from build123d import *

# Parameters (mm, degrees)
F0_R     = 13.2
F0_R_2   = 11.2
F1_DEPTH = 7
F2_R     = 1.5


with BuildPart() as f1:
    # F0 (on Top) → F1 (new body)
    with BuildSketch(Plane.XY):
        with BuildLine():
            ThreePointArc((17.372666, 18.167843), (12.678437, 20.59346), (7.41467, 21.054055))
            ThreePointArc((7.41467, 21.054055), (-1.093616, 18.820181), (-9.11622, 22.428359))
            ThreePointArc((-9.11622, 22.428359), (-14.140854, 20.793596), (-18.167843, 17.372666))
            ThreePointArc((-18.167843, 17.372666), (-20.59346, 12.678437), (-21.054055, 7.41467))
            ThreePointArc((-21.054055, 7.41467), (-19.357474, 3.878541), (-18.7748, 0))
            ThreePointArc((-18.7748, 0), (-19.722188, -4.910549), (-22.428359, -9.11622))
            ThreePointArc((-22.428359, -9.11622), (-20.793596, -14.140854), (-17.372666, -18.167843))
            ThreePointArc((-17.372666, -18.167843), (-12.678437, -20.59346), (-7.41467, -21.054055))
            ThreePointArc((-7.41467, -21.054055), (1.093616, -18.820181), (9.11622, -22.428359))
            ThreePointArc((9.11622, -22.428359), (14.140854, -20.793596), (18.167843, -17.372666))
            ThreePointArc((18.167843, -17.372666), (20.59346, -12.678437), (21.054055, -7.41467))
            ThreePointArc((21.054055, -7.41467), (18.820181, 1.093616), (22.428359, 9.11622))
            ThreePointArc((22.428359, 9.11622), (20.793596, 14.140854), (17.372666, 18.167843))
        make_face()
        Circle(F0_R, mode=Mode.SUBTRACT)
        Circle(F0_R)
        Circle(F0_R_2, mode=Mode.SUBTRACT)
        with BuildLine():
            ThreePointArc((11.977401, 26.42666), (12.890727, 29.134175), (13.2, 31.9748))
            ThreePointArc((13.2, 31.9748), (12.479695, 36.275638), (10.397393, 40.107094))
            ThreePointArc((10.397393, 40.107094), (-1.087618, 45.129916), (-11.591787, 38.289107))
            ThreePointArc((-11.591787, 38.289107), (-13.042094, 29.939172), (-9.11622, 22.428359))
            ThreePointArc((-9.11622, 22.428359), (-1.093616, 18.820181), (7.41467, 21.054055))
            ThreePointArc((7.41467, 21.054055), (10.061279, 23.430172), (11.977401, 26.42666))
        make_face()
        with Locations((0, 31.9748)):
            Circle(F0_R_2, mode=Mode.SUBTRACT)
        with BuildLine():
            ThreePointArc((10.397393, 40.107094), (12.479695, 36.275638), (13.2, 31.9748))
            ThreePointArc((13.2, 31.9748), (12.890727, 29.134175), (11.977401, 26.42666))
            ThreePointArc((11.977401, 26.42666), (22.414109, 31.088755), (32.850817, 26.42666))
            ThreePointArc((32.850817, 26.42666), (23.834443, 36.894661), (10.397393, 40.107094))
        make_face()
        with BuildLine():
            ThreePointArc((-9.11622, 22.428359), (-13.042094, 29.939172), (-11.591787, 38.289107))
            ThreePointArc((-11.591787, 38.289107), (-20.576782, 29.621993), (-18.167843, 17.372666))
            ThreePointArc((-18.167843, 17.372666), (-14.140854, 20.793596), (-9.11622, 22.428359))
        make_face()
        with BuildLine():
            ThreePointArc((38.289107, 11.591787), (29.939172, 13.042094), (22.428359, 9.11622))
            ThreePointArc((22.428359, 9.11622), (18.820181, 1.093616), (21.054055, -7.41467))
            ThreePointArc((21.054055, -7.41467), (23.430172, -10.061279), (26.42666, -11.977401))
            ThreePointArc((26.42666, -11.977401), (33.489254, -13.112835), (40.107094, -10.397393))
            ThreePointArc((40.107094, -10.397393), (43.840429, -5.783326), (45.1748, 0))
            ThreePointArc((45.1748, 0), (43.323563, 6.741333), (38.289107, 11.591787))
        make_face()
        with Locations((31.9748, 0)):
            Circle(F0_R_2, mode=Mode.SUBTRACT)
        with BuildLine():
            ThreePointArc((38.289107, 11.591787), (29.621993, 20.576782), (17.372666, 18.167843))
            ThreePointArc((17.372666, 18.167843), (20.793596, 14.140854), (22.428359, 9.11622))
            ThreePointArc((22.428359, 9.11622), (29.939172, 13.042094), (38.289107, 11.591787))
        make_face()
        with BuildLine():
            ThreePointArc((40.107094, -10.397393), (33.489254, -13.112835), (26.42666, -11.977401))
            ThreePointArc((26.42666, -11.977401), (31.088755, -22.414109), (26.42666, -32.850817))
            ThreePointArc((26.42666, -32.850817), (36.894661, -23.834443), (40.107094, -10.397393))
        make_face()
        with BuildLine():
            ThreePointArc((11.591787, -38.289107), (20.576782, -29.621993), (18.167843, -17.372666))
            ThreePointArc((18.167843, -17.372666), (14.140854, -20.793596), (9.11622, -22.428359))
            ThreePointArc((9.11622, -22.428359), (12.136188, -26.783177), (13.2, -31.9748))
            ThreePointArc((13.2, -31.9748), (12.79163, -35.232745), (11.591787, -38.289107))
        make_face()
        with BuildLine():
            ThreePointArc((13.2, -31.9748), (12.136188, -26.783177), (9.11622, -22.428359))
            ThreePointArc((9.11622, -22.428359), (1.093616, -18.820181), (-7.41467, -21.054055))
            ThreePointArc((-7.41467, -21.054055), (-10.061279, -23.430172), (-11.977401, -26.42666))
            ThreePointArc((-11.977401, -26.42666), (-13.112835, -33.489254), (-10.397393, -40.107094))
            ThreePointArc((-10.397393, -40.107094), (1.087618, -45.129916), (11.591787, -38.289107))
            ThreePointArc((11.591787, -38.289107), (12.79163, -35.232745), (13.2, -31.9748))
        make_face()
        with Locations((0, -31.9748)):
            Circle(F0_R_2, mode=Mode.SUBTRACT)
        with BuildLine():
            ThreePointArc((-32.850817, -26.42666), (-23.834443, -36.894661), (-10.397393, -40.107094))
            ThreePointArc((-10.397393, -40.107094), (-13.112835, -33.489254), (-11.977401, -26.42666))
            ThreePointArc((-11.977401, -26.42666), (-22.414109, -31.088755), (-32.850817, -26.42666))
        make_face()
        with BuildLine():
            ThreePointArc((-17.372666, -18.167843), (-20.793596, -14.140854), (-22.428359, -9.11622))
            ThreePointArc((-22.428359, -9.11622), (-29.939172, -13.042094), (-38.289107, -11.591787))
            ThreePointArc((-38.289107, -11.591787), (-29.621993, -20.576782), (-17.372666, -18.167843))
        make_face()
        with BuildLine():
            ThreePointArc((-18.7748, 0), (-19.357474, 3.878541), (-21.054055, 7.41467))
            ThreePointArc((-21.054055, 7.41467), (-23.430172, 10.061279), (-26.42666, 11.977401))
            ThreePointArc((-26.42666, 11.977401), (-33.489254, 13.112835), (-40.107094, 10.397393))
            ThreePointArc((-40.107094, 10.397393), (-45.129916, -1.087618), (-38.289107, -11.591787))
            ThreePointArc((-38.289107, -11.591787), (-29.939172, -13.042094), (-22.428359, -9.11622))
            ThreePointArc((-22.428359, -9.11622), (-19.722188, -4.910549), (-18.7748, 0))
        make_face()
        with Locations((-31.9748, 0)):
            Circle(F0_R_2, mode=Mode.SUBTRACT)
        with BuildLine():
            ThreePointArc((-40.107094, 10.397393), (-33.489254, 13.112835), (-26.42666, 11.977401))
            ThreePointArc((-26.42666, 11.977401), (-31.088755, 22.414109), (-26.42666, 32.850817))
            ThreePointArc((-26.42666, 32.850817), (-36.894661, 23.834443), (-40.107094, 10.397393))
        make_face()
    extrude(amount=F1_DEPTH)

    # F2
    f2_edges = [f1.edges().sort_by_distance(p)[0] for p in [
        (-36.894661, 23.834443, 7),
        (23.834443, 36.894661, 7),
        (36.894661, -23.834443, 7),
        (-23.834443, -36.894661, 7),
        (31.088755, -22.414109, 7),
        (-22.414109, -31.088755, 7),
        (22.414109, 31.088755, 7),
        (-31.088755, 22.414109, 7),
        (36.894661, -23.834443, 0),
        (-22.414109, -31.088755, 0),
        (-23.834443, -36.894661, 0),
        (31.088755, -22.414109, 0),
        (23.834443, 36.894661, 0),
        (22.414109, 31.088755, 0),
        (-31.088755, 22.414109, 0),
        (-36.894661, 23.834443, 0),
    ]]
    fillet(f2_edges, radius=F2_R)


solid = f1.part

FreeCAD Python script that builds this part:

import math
import FreeCAD as App
import Part
import Sketcher
Q = App.Units.Quantity


def edges_at(feature, points):
    """Names of the edges that pass closest to the given points."""
    edges = feature.Shape.Edges
    near = lambda p: min(range(len(edges)), key=lambda i: edges[i].distToShape(Part.Vertex(*p))[0])
    return sorted({f"Edge{near(p) + 1}" for p in points})

doc = App.newDocument("Part")
body = doc.addObject("PartDesign::Body", "Body")

# Sketch on XY plane
sketch1 = body.newObject("Sketcher::SketchObject", "Sketch")
sketch1.AttachmentSupport = (doc.getObject("XY_Plane"), [""])
sketch1.MapMode = "FlatFace"
sketch1.addGeometry([
    Part.ArcOfCircle(Part.Circle(App.Vector(9, 7, 0), App.Vector(0, 0, 1), 14), math.radians(52), math.radians(96)),  # 0
    Part.ArcOfCircle(Part.Circle(App.Vector(0, 32, 0), App.Vector(0, 0, 1), 13), math.radians(-56), math.radians(-25)),  # 1
    Part.ArcOfCircle(Part.Circle(App.Vector(22, 17, 0), App.Vector(0, 0, 1), 14), math.radians(42), math.radians(138)),  # 2
    Part.ArcOfCircle(Part.Circle(App.Vector(12, 18, 0), App.Vector(0, 0, 1), 22), math.radians(23), math.radians(94)),  # 3
    Part.ArcOfCircle(Part.Circle(App.Vector(0, 32, 0), App.Vector(0, 0, 1), 13), math.radians(38), math.radians(151)),  # 4
    Part.ArcOfCircle(Part.Circle(App.Vector(-8, 26, 0), App.Vector(0, 0, 1), 13), math.radians(105), math.radians(220)),  # 5
    Part.ArcOfCircle(Part.Circle(App.Vector(-7, 9, 0), App.Vector(0, 0, 1), 14), math.radians(142), math.radians(186)),  # 6
    Part.ArcOfCircle(Part.Circle(App.Vector(-32, 0, 0), App.Vector(0, 0, 1), 13), math.radians(34), math.radians(65)),  # 7
    Part.ArcOfCircle(Part.Circle(App.Vector(-17, 22, 0), App.Vector(0, 0, 1), 14), math.radians(132), math.radians(228)),  # 8
    Part.ArcOfCircle(Part.Circle(App.Vector(-18, 12, 0), App.Vector(0, 0, 1), 22), math.radians(113), math.radians(184)),  # 9
    Part.ArcOfCircle(Part.Circle(App.Vector(-32, 0, 0), App.Vector(0, 0, 1), 13), math.radians(128), math.radians(241)),  # 10
    Part.ArcOfCircle(Part.Circle(App.Vector(-26, -8, 0), App.Vector(0, 0, 1), 13), math.radians(-165), math.radians(-50)),  # 11
    Part.ArcOfCircle(Part.Circle(App.Vector(-9, -7, 0), App.Vector(0, 0, 1), 14), math.radians(-128), math.radians(-84)),  # 12
    Part.ArcOfCircle(Part.Circle(App.Vector(0, -32, 0), App.Vector(0, 0, 1), 13), math.radians(124), math.radians(155)),  # 13
    Part.ArcOfCircle(Part.Circle(App.Vector(-22, -17, 0), App.Vector(0, 0, 1), 14), math.radians(-138), math.radians(-42)),  # 14
    Part.ArcOfCircle(Part.Circle(App.Vector(-12, -18, 0), App.Vector(0, 0, 1), 22), math.radians(-157), math.radians(-86)),  # 15
    Part.ArcOfCircle(Part.Circle(App.Vector(0, -32, 0), App.Vector(0, 0, 1), 13), math.radians(-142), math.radians(-29)),  # 16
    Part.ArcOfCircle(Part.Circle(App.Vector(8, -26, 0), App.Vector(0, 0, 1), 13), math.radians(-75), math.radians(40)),  # 17
    Part.ArcOfCircle(Part.Circle(App.Vector(7, -9, 0), App.Vector(0, 0, 1), 14), math.radians(-38), math.radians(6)),  # 18
    Part.ArcOfCircle(Part.Circle(App.Vector(32, 0, 0), App.Vector(0, 0, 1), 13), math.radians(-146), math.radians(-115)),  # 19
    Part.ArcOfCircle(Part.Circle(App.Vector(17, -22, 0), App.Vector(0, 0, 1), 14), math.radians(-48), math.radians(48)),  # 20
    Part.ArcOfCircle(Part.Circle(App.Vector(18, -12, 0), App.Vector(0, 0, 1), 22), math.radians(-67), math.radians(4)),  # 21
    Part.ArcOfCircle(Part.Circle(App.Vector(32, 0, 0), App.Vector(0, 0, 1), 13), math.radians(-52), math.radians(0)),  # 22
    Part.ArcOfCircle(Part.Circle(App.Vector(32, 0, 0), App.Vector(0, 0, 1), 13), math.radians(0), math.radians(61)),  # 23
    Part.ArcOfCircle(Part.Circle(App.Vector(26, 8, 0), App.Vector(0, 0, 1), 13), math.radians(15), math.radians(130)),  # 24
    Part.Circle(App.Vector(0, -32, 0), App.Vector(0, 0, 1), 11),  # 25
    Part.Circle(App.Vector(-32, 0, 0), App.Vector(0, 0, 1), 11),  # 26
    Part.Circle(App.Vector(0, 0, 0), App.Vector(0, 0, 1), 11),  # 27
    Part.Circle(App.Vector(32, 0, 0), App.Vector(0, 0, 1), 11),  # 28
    Part.Circle(App.Vector(0, 32, 0), App.Vector(0, 0, 1), 11),  # 29
], False)
sketch1.addConstraint([
    Sketcher.Constraint("Coincident", 0, 2, 1, 1),
    Sketcher.Constraint("Coincident", 1, 2, 2, 2),
    Sketcher.Constraint("Coincident", 2, 1, 3, 1),
    Sketcher.Constraint("Coincident", 3, 2, 4, 1),
    Sketcher.Constraint("Coincident", 4, 2, 5, 1),
    Sketcher.Constraint("Coincident", 5, 2, 6, 1),
    Sketcher.Constraint("Coincident", 6, 2, 7, 1),
    Sketcher.Constraint("Coincident", 7, 2, 8, 2),
    Sketcher.Constraint("Coincident", 8, 1, 9, 1),
    Sketcher.Constraint("Coincident", 9, 2, 10, 1),
    Sketcher.Constraint("Coincident", 10, 2, 11, 1),
    Sketcher.Constraint("Coincident", 11, 2, 12, 1),
    Sketcher.Constraint("Coincident", 12, 2, 13, 1),
    Sketcher.Constraint("Coincident", 13, 2, 14, 2),
    Sketcher.Constraint("Coincident", 14, 1, 15, 1),
    Sketcher.Constraint("Coincident", 15, 2, 16, 1),
    Sketcher.Constraint("Coincident", 16, 2, 17, 1),
    Sketcher.Constraint("Coincident", 17, 2, 18, 1),
    Sketcher.Constraint("Coincident", 18, 2, 19, 1),
    Sketcher.Constraint("Coincident", 19, 2, 20, 2),
    Sketcher.Constraint("Coincident", 20, 1, 21, 1),
    Sketcher.Constraint("Coincident", 21, 2, 22, 1),
    Sketcher.Constraint("Tangent", 22, 2, 23, 1),
    Sketcher.Constraint("Coincident", 23, 2, 24, 1),
    Sketcher.Constraint("Coincident", 24, 2, 0, 1),
    Sketcher.Constraint("Coincident", 27, 3, -1, 1),
    Sketcher.Constraint("Coincident", 4, 3, 1, 3),
    Sketcher.Constraint("Coincident", 10, 3, 7, 3),
    Sketcher.Constraint("Coincident", 16, 3, 13, 3),
    Sketcher.Constraint("Coincident", 23, 3, 19, 3),
    Sketcher.Constraint("Coincident", 25, 3, 13, 3),
    Sketcher.Constraint("Coincident", 26, 3, 7, 3),
    Sketcher.Constraint("Coincident", 28, 3, 19, 3),
    Sketcher.Constraint("Coincident", 29, 3, 1, 3),
    Sketcher.Constraint("Equal", 0, 6),
    Sketcher.Constraint("Equal", 1, 7),
    Sketcher.Constraint("Equal", 2, 8),
    Sketcher.Constraint("Equal", 3, 9),
    Sketcher.Constraint("Equal", 4, 10),
    Sketcher.Constraint("Equal", 5, 11),
    Sketcher.Constraint("Equal", 6, 12),
    Sketcher.Constraint("Equal", 7, 13),
    Sketcher.Constraint("Equal", 8, 14),
    Sketcher.Constraint("Equal", 9, 15),
    Sketcher.Constraint("Equal", 10, 16),
    Sketcher.Constraint("Equal", 11, 17),
    Sketcher.Constraint("Equal", 12, 18),
    Sketcher.Constraint("Equal", 13, 19),
    Sketcher.Constraint("Equal", 14, 20),
    Sketcher.Constraint("Equal", 15, 21),
    Sketcher.Constraint("Equal", 19, 22),
    Sketcher.Constraint("Equal", 16, 23),
    Sketcher.Constraint("Equal", 17, 24),
    Sketcher.Constraint("Equal", 25, 26),
    Sketcher.Constraint("Equal", 26, 27),
    Sketcher.Constraint("Equal", 27, 28),
    Sketcher.Constraint("Equal", 28, 29),
    Sketcher.Constraint("Symmetric", 0, 3, 12, 3, -1, 1),
    Sketcher.Constraint("Symmetric", 1, 3, 13, 3, -1, 1),
    Sketcher.Constraint("Symmetric", 2, 3, 14, 3, -1, 1),
    Sketcher.Constraint("Symmetric", 3, 3, 15, 3, -1, 1),
    Sketcher.Constraint("Symmetric", 5, 3, 17, 3, -1, 1),
    Sketcher.Constraint("Symmetric", 6, 3, 18, 3, -1, 1),
    Sketcher.Constraint("Symmetric", 7, 3, 19, 3, -1, 1),
    Sketcher.Constraint("Symmetric", 8, 3, 20, 3, -1, 1),
    Sketcher.Constraint("Symmetric", 9, 3, 21, 3, -1, 1),
    Sketcher.Constraint("Symmetric", 11, 3, 24, 3, -1, 1),
    Sketcher.Constraint("Symmetric", 10, 3, 22, 3, -2),
    Sketcher.Constraint("PointOnObject", 4, 3, -2),
    Sketcher.Constraint("PointOnObject", 22, 2, -1),
    Sketcher.Constraint("Horizontal", 1, 2, 2, 1),
    Sketcher.Constraint("Vertical", 7, 2, 8, 1),
    Sketcher.Constraint("Diameter", 25, Q("22.4 mm")),
    Sketcher.Constraint("Radius", 4, Q("13.2 mm")),
    Sketcher.Constraint("Radius", 0, Q("13.646547 mm")),
    Sketcher.Constraint("Radius", 2, Q("14.013014 mm")),
    Sketcher.Constraint("Radius", 3, Q("22.465778 mm")),
    Sketcher.Constraint("Radius", 5, Q("13.048544 mm")),
    Sketcher.Constraint("DistanceY", -1, 1, 4, 3, Q("31.9748 mm")),
    Sketcher.Constraint("DistanceX", 10, 3, -1, 1, Q("31.9748 mm")),
    Sketcher.Constraint("DistanceX", -1, 1, 1, 2, Q("11.977401 mm")),
    Sketcher.Constraint("DistanceY", -1, 1, 7, 2, Q("11.977401 mm")),
    Sketcher.Constraint("DistanceY", 0, 3, 0, 2, Q("13.567702 mm")),
    Sketcher.Constraint("DistanceY", 1, 3, 3, 2, Q("8.132298 mm")),
    Sketcher.Constraint("DistanceX", 5, 2, 8, 3, Q("1.092102 mm")),
    Sketcher.Constraint("DistanceX", 9, 2, 7, 3, Q("8.132298 mm")),
    Sketcher.Constraint("DistanceY", 11, 2, 14, 3, Q("1.092102 mm")),
    Sketcher.Constraint("DistanceX", 22, 3, 23, 2, Q("6.314301 mm")),
    Sketcher.Constraint("DistanceX", -1, 1, 0, 3, Q("8.879492 mm")),
    Sketcher.Constraint("DistanceX", -1, 1, 2, 3, Q("22.414109 mm")),
    Sketcher.Constraint("DistanceY", -1, 1, 6, 3, Q("8.879492 mm")),
    Sketcher.Constraint("DistanceX", 8, 3, -1, 1, Q("17.075741 mm")),
    Sketcher.Constraint("DistanceY", -1, 1, 6, 2, Q("7.41467 mm")),
    Sketcher.Constraint("DistanceX", 5, 3, 1, 3, Q("8.128951 mm")),
])
pad1 = body.newObject("PartDesign::Pad", "Pad")
pad1.Profile = sketch1
pad1.Length = 7
doc.recompute()

fillet = body.newObject("PartDesign::Fillet", "Fillet")
fillet.Base = (pad1, edges_at(pad1, [
    (-36.895, 23.834, 7),
    (23.834, 36.895, 7),
    (36.895, -23.834, 7),
    (-23.834, -36.895, 7),
    (31.089, -22.414, 7),
    (-22.414, -31.089, 7),
    (22.414, 31.089, 7),
    (-31.089, 22.414, 7),
    (36.895, -23.834, 0),
    (-22.414, -31.089, 0),
    (-23.834, -36.895, 0),
    (31.089, -22.414, 0),
    (23.834, 36.895, 0),
    (22.414, 31.089, 0),
    (-31.089, 22.414, 0),
    (-36.895, 23.834, 0),
]))
fillet.Radius = 1.5

doc.recompute()
